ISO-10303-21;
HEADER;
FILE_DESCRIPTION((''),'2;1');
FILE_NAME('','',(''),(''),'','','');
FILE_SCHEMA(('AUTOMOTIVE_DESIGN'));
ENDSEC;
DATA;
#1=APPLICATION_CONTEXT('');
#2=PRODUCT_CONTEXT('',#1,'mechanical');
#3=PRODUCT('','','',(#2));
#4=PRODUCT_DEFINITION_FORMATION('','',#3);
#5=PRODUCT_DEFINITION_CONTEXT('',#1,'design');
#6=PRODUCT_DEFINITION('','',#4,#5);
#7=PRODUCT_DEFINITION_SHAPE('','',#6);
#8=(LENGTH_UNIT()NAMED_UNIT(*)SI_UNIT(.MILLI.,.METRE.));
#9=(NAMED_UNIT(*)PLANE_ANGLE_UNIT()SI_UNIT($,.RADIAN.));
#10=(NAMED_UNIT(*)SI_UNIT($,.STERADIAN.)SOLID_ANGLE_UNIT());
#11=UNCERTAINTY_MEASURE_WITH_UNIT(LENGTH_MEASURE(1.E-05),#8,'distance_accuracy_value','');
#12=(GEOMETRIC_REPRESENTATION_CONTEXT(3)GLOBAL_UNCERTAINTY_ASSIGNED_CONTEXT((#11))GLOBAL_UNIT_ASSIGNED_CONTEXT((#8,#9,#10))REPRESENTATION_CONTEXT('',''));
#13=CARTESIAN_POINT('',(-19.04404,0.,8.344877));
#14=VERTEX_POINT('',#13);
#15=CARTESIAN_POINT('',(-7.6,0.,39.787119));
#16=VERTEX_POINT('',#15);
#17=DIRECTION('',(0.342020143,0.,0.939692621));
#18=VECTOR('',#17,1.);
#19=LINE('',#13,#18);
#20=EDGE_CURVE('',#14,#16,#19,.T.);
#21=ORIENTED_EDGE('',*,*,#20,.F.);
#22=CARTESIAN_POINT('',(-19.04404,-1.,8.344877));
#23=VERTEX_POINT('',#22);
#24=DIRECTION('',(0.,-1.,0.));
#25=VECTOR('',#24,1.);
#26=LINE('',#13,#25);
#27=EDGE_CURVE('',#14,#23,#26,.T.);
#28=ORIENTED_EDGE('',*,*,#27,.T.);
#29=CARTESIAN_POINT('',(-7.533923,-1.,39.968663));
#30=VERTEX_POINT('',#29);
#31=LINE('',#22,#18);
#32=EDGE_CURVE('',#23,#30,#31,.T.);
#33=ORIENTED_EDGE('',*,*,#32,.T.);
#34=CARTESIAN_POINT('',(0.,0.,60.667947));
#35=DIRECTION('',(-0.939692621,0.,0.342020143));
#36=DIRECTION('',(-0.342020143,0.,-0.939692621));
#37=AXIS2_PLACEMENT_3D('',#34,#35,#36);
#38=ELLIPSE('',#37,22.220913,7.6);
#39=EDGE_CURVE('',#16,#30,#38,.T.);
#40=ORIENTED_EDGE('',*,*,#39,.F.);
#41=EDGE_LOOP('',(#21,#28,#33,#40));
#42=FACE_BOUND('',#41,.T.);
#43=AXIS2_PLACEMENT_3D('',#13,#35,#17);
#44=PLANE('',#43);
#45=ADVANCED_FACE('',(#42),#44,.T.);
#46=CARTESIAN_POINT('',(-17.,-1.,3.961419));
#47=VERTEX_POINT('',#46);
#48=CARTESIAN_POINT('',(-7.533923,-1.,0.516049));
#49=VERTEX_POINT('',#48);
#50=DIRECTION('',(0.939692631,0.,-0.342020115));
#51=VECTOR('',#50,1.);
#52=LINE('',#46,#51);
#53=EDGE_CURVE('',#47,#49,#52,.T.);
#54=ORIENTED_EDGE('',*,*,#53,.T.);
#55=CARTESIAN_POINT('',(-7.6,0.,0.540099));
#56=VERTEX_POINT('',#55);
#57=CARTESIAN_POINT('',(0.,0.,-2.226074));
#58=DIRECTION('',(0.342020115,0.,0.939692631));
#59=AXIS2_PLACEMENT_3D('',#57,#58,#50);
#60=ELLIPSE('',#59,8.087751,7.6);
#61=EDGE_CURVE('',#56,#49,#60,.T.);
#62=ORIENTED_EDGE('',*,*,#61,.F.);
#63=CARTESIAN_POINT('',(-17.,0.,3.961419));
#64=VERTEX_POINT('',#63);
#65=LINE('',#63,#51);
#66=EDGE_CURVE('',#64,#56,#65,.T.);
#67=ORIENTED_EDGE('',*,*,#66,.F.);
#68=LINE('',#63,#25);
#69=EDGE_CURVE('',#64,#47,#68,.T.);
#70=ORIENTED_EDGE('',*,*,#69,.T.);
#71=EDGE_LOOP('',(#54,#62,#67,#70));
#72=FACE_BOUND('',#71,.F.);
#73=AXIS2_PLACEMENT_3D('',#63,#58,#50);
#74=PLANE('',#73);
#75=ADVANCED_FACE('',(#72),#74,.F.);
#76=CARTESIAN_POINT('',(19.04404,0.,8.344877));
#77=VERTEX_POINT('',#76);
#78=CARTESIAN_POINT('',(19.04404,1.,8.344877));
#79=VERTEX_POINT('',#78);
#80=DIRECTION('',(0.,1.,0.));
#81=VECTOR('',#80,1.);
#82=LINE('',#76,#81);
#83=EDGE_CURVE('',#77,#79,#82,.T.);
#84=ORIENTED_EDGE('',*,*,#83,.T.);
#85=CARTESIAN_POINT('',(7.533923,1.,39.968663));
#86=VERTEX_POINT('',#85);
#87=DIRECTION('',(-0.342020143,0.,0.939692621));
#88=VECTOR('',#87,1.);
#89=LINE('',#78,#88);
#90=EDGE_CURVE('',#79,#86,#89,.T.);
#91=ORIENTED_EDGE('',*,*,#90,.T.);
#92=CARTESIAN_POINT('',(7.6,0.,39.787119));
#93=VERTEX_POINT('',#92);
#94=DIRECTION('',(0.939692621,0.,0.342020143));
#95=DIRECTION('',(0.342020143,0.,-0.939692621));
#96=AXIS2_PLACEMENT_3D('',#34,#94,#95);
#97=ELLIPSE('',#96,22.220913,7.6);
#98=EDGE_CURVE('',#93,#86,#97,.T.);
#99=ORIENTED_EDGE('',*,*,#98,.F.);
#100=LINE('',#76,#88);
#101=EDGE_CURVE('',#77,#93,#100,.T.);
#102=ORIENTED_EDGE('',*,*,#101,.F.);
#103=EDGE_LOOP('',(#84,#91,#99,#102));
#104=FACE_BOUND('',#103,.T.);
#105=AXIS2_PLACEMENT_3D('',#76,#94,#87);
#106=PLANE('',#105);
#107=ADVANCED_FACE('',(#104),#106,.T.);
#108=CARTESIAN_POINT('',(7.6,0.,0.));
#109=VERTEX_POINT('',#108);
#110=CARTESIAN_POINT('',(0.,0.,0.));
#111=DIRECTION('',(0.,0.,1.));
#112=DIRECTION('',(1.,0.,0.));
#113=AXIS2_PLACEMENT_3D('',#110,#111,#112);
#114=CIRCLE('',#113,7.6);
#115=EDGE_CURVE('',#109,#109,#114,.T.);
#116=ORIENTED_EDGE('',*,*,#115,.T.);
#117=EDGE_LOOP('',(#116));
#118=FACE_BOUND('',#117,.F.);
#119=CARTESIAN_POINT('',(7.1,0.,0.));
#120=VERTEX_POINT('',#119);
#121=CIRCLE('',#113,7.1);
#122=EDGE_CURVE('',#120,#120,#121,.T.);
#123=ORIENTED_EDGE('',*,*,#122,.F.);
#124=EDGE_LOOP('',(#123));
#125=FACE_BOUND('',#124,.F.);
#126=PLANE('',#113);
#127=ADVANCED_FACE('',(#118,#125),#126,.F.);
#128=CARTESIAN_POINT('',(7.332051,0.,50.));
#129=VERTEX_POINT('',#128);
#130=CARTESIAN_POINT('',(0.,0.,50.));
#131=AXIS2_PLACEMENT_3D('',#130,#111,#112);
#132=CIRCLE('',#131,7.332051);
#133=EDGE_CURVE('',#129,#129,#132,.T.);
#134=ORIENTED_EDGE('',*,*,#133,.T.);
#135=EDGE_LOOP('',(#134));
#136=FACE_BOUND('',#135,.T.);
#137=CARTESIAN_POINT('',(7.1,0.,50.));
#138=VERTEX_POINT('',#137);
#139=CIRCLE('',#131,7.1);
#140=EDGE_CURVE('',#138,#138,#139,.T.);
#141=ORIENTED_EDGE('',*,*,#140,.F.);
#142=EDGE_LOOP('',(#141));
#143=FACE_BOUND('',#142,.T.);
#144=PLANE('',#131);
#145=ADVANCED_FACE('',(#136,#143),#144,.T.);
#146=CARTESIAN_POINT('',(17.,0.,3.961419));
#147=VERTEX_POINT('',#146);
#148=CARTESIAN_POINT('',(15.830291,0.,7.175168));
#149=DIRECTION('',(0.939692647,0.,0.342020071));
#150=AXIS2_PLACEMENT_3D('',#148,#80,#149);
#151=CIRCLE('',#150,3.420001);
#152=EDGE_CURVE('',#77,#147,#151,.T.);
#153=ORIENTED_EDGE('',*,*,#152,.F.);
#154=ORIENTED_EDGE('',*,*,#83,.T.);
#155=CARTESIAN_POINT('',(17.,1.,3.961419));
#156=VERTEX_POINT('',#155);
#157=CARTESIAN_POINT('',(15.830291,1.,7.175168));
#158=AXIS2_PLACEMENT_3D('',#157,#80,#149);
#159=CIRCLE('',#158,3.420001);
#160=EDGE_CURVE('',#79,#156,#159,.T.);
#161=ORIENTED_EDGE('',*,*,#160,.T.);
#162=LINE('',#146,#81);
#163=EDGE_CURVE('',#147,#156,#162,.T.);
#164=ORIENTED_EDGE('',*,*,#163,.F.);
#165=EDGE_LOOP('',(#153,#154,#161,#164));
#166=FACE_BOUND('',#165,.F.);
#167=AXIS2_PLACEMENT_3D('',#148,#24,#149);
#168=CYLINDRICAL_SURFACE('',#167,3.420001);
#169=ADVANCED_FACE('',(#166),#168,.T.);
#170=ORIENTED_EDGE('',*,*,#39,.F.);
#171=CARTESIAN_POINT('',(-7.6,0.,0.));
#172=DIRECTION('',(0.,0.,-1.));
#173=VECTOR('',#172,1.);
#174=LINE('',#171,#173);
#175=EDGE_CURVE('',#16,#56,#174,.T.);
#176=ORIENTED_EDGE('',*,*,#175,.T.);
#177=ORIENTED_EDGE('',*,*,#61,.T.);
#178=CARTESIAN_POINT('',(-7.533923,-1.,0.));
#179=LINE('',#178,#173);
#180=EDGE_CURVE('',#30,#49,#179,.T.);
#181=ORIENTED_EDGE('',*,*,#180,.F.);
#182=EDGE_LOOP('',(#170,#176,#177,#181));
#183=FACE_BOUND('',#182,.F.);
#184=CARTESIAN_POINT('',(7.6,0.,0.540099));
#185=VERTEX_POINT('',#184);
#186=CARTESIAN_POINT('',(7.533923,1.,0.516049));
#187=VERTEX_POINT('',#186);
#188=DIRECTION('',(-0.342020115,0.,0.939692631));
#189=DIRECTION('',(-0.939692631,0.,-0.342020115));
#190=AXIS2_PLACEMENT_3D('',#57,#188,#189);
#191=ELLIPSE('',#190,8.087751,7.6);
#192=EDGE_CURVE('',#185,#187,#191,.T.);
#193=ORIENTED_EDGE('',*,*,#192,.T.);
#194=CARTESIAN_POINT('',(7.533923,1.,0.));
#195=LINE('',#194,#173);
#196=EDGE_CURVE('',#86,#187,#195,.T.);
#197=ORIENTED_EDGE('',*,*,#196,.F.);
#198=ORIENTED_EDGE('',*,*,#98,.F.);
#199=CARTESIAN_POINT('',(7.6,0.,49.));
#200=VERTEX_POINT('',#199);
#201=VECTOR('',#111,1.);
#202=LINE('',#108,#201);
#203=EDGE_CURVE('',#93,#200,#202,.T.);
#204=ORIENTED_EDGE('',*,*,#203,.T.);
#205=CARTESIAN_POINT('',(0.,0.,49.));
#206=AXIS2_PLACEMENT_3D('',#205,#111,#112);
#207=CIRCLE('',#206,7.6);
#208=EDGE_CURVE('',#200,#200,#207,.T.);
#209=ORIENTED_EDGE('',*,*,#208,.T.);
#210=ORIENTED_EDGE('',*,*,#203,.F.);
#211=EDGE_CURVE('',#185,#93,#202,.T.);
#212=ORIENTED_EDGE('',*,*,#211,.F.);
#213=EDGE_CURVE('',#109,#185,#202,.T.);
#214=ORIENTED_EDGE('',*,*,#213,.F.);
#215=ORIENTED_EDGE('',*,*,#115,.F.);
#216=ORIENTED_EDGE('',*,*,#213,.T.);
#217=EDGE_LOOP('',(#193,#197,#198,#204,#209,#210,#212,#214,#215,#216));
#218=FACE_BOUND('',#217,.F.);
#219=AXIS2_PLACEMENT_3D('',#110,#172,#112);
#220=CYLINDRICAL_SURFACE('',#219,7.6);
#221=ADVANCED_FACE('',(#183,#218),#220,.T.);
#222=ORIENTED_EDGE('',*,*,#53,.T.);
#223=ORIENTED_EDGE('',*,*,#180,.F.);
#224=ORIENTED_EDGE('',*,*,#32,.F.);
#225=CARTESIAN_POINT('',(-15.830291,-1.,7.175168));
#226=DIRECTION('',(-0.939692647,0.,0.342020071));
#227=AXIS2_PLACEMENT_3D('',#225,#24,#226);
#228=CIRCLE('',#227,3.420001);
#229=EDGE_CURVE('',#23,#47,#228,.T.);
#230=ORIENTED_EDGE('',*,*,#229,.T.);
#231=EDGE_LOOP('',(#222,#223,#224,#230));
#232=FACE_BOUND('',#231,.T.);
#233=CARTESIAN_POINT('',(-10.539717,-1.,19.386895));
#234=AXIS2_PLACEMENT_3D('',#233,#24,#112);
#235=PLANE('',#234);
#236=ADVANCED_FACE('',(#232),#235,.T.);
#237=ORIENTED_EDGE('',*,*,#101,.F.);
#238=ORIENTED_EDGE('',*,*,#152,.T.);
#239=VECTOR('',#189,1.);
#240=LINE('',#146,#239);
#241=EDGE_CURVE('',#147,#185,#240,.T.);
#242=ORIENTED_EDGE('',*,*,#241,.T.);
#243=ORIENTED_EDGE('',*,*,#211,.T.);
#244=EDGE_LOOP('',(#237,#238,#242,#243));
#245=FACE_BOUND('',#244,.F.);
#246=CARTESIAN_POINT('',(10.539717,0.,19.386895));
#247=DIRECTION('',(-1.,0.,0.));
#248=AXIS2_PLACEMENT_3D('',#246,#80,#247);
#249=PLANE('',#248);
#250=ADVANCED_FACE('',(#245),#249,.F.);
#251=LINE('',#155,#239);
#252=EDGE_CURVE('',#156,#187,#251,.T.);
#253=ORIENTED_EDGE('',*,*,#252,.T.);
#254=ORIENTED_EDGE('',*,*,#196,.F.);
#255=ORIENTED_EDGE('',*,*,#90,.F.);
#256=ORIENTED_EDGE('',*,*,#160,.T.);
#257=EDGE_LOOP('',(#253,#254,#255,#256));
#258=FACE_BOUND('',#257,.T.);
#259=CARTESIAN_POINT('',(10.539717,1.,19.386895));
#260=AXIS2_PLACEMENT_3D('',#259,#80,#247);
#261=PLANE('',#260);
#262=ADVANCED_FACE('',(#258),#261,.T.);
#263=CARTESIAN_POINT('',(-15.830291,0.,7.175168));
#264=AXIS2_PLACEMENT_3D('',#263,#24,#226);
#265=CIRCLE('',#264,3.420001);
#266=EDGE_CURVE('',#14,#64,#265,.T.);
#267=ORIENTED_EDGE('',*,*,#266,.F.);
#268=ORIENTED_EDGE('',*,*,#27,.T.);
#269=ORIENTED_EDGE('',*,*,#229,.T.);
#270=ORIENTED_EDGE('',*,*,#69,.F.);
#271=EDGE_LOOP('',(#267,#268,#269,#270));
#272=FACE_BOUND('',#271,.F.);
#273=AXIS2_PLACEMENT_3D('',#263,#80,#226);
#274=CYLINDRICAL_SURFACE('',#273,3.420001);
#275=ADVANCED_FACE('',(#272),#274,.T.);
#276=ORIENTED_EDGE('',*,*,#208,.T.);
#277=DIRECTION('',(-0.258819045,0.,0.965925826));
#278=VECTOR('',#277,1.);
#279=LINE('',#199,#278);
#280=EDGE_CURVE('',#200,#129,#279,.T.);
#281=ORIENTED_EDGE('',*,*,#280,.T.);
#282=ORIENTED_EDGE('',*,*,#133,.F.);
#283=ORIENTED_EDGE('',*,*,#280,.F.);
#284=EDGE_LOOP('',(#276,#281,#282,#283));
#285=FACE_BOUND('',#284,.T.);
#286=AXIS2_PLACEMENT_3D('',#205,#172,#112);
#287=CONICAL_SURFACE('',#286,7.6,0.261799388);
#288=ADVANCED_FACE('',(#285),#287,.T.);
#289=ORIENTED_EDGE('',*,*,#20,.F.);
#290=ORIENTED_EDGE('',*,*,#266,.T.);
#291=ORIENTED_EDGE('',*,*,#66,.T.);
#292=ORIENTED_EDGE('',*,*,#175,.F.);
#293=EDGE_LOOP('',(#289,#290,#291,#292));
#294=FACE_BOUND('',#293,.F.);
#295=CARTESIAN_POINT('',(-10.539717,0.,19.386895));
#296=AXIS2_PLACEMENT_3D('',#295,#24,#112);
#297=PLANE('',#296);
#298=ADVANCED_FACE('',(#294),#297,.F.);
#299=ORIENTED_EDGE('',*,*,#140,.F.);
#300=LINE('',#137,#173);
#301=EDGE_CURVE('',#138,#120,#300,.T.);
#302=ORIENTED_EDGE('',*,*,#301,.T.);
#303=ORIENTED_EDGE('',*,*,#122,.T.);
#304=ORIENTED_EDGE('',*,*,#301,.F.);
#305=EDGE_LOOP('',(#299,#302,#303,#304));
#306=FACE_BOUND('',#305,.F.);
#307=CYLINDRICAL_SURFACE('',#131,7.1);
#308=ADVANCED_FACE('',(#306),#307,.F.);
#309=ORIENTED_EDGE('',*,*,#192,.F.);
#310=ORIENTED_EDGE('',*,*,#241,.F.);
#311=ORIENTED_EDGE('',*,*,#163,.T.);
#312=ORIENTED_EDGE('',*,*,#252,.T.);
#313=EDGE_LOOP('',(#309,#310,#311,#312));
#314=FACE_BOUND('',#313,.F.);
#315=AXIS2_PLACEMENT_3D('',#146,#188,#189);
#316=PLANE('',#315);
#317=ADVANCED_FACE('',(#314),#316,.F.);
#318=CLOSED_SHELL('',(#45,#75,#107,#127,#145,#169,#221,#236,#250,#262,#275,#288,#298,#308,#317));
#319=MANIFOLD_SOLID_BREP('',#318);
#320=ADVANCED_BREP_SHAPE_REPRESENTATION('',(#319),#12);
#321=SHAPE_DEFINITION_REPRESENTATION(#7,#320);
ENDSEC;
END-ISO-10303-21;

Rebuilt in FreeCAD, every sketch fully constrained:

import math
import FreeCAD as App
import Part
import Sketcher
Q = App.Units.Quantity


def edges_at(feature, points):
    """Names of the edges that pass closest to the given points."""
    edges = feature.Shape.Edges
    near = lambda p: min(range(len(edges)), key=lambda i: edges[i].distToShape(Part.Vertex(*p))[0])
    return sorted({f"Edge{near(p) + 1}" for p in points})

doc = App.newDocument("Part")
body = doc.addObject("PartDesign::Body", "Body")

sketch1 = body.newObject("Sketcher::SketchObject", "Sketch")
sketch1.AttachmentSupport = (doc.getObject("XY_Plane"), [""])
sketch1.MapMode = "FlatFace"
sketch1.addGeometry(Part.Circle(App.Vector(0, 0, 0), App.Vector(0, 0, 1), 8), False)
sketch1.addConstraint([
    Sketcher.Constraint("Coincident", 0, 3, -1, 1),
    Sketcher.Constraint("Diameter", 0, 15.2),
])
pad1 = body.newObject("PartDesign::Pad", "Pad")
pad1.Profile = sketch1
pad1.Length = 50

sketch2 = body.newObject("Sketcher::SketchObject", "Sketch001")
sketch2.AttachmentSupport = (doc.getObject("XZ_Plane"), [""])
sketch2.MapMode = "FlatFace"
sketch2.addGeometry([
    Part.LineSegment(App.Vector(7, 0.3, 0), App.Vector(7, 41.4, 0)),
    Part.LineSegment(App.Vector(7, 41.4, 0), App.Vector(19, 8.3, 0)),
    Part.ArcOfCircle(Part.Circle(App.Vector(15.8, 7.2, 0), App.Vector(0, 0, 1), 3.4), math.radians(-70), math.radians(20)),
    Part.LineSegment(App.Vector(17, 4, 0), App.Vector(7, 0.3, 0)),
], False)
sketch2.addConstraint([
    Sketcher.Constraint("Coincident", 0, 2, 1, 1),
    Sketcher.Constraint("Tangent", 1, 2, 2, 2),
    Sketcher.Constraint("Tangent", 2, 1, 3, 1),
    Sketcher.Constraint("Coincident", 3, 2, 0, 1),
    Sketcher.Constraint("Vertical", 0),
    Sketcher.Constraint("Perpendicular", 1, 3),
    Sketcher.Constraint("Angle", 1, Q("-70 deg")),
    Sketcher.Constraint("Radius", 2, 3.420001),
    Sketcher.Constraint("DistanceX", -1, 1, 0, 2, 7.0),
    Sketcher.Constraint("DistanceX", -1, 1, 2, 1, 17.0),
    Sketcher.Constraint("DistanceY", -1, 1, 2, 3, 7.175168),
])
pad2 = body.newObject("PartDesign::Pad", "Pad001")
pad2.Profile = sketch2
pad2.Length = 1
pad2.Reversed = True
doc.recompute()

polarpattern = body.newObject("PartDesign::PolarPattern", "PolarPattern")
polarpattern.Originals = [pad2]
polarpattern.Axis = (doc.getObject("Z_Axis"), [""])
polarpattern.Angle = 360
polarpattern.Occurrences = 2
body.Tip = polarpattern
doc.recompute()

chamfer = body.newObject("PartDesign::Chamfer", "Chamfer")
chamfer.Base = (polarpattern, edges_at(polarpattern, [(-7.6, 0, 50)]))
chamfer.ChamferType = "Distance and Angle"
chamfer.Size = 1
chamfer.Angle = 15

sketch3 = body.newObject("Sketcher::SketchObject", "Sketch002")
sketch3.AttachmentSupport = (doc.getObject("XY_Plane"), [""])
sketch3.MapMode = "FlatFace"
sketch3.AttachmentOffset = App.Placement(App.Vector(0, 0, 50), App.Rotation())
sketch3.addGeometry(Part.Circle(App.Vector(0, 0, 0), App.Vector(0, 0, 1), 7), False)
sketch3.addConstraint([
    Sketcher.Constraint("Coincident", 0, 3, -1, 1),
    Sketcher.Constraint("Diameter", 0, 14.2),
])
pocket1 = body.newObject("PartDesign::Pocket", "Pocket")
pocket1.Profile = sketch3
pocket1.Type = "ThroughAll"

doc.recompute()
